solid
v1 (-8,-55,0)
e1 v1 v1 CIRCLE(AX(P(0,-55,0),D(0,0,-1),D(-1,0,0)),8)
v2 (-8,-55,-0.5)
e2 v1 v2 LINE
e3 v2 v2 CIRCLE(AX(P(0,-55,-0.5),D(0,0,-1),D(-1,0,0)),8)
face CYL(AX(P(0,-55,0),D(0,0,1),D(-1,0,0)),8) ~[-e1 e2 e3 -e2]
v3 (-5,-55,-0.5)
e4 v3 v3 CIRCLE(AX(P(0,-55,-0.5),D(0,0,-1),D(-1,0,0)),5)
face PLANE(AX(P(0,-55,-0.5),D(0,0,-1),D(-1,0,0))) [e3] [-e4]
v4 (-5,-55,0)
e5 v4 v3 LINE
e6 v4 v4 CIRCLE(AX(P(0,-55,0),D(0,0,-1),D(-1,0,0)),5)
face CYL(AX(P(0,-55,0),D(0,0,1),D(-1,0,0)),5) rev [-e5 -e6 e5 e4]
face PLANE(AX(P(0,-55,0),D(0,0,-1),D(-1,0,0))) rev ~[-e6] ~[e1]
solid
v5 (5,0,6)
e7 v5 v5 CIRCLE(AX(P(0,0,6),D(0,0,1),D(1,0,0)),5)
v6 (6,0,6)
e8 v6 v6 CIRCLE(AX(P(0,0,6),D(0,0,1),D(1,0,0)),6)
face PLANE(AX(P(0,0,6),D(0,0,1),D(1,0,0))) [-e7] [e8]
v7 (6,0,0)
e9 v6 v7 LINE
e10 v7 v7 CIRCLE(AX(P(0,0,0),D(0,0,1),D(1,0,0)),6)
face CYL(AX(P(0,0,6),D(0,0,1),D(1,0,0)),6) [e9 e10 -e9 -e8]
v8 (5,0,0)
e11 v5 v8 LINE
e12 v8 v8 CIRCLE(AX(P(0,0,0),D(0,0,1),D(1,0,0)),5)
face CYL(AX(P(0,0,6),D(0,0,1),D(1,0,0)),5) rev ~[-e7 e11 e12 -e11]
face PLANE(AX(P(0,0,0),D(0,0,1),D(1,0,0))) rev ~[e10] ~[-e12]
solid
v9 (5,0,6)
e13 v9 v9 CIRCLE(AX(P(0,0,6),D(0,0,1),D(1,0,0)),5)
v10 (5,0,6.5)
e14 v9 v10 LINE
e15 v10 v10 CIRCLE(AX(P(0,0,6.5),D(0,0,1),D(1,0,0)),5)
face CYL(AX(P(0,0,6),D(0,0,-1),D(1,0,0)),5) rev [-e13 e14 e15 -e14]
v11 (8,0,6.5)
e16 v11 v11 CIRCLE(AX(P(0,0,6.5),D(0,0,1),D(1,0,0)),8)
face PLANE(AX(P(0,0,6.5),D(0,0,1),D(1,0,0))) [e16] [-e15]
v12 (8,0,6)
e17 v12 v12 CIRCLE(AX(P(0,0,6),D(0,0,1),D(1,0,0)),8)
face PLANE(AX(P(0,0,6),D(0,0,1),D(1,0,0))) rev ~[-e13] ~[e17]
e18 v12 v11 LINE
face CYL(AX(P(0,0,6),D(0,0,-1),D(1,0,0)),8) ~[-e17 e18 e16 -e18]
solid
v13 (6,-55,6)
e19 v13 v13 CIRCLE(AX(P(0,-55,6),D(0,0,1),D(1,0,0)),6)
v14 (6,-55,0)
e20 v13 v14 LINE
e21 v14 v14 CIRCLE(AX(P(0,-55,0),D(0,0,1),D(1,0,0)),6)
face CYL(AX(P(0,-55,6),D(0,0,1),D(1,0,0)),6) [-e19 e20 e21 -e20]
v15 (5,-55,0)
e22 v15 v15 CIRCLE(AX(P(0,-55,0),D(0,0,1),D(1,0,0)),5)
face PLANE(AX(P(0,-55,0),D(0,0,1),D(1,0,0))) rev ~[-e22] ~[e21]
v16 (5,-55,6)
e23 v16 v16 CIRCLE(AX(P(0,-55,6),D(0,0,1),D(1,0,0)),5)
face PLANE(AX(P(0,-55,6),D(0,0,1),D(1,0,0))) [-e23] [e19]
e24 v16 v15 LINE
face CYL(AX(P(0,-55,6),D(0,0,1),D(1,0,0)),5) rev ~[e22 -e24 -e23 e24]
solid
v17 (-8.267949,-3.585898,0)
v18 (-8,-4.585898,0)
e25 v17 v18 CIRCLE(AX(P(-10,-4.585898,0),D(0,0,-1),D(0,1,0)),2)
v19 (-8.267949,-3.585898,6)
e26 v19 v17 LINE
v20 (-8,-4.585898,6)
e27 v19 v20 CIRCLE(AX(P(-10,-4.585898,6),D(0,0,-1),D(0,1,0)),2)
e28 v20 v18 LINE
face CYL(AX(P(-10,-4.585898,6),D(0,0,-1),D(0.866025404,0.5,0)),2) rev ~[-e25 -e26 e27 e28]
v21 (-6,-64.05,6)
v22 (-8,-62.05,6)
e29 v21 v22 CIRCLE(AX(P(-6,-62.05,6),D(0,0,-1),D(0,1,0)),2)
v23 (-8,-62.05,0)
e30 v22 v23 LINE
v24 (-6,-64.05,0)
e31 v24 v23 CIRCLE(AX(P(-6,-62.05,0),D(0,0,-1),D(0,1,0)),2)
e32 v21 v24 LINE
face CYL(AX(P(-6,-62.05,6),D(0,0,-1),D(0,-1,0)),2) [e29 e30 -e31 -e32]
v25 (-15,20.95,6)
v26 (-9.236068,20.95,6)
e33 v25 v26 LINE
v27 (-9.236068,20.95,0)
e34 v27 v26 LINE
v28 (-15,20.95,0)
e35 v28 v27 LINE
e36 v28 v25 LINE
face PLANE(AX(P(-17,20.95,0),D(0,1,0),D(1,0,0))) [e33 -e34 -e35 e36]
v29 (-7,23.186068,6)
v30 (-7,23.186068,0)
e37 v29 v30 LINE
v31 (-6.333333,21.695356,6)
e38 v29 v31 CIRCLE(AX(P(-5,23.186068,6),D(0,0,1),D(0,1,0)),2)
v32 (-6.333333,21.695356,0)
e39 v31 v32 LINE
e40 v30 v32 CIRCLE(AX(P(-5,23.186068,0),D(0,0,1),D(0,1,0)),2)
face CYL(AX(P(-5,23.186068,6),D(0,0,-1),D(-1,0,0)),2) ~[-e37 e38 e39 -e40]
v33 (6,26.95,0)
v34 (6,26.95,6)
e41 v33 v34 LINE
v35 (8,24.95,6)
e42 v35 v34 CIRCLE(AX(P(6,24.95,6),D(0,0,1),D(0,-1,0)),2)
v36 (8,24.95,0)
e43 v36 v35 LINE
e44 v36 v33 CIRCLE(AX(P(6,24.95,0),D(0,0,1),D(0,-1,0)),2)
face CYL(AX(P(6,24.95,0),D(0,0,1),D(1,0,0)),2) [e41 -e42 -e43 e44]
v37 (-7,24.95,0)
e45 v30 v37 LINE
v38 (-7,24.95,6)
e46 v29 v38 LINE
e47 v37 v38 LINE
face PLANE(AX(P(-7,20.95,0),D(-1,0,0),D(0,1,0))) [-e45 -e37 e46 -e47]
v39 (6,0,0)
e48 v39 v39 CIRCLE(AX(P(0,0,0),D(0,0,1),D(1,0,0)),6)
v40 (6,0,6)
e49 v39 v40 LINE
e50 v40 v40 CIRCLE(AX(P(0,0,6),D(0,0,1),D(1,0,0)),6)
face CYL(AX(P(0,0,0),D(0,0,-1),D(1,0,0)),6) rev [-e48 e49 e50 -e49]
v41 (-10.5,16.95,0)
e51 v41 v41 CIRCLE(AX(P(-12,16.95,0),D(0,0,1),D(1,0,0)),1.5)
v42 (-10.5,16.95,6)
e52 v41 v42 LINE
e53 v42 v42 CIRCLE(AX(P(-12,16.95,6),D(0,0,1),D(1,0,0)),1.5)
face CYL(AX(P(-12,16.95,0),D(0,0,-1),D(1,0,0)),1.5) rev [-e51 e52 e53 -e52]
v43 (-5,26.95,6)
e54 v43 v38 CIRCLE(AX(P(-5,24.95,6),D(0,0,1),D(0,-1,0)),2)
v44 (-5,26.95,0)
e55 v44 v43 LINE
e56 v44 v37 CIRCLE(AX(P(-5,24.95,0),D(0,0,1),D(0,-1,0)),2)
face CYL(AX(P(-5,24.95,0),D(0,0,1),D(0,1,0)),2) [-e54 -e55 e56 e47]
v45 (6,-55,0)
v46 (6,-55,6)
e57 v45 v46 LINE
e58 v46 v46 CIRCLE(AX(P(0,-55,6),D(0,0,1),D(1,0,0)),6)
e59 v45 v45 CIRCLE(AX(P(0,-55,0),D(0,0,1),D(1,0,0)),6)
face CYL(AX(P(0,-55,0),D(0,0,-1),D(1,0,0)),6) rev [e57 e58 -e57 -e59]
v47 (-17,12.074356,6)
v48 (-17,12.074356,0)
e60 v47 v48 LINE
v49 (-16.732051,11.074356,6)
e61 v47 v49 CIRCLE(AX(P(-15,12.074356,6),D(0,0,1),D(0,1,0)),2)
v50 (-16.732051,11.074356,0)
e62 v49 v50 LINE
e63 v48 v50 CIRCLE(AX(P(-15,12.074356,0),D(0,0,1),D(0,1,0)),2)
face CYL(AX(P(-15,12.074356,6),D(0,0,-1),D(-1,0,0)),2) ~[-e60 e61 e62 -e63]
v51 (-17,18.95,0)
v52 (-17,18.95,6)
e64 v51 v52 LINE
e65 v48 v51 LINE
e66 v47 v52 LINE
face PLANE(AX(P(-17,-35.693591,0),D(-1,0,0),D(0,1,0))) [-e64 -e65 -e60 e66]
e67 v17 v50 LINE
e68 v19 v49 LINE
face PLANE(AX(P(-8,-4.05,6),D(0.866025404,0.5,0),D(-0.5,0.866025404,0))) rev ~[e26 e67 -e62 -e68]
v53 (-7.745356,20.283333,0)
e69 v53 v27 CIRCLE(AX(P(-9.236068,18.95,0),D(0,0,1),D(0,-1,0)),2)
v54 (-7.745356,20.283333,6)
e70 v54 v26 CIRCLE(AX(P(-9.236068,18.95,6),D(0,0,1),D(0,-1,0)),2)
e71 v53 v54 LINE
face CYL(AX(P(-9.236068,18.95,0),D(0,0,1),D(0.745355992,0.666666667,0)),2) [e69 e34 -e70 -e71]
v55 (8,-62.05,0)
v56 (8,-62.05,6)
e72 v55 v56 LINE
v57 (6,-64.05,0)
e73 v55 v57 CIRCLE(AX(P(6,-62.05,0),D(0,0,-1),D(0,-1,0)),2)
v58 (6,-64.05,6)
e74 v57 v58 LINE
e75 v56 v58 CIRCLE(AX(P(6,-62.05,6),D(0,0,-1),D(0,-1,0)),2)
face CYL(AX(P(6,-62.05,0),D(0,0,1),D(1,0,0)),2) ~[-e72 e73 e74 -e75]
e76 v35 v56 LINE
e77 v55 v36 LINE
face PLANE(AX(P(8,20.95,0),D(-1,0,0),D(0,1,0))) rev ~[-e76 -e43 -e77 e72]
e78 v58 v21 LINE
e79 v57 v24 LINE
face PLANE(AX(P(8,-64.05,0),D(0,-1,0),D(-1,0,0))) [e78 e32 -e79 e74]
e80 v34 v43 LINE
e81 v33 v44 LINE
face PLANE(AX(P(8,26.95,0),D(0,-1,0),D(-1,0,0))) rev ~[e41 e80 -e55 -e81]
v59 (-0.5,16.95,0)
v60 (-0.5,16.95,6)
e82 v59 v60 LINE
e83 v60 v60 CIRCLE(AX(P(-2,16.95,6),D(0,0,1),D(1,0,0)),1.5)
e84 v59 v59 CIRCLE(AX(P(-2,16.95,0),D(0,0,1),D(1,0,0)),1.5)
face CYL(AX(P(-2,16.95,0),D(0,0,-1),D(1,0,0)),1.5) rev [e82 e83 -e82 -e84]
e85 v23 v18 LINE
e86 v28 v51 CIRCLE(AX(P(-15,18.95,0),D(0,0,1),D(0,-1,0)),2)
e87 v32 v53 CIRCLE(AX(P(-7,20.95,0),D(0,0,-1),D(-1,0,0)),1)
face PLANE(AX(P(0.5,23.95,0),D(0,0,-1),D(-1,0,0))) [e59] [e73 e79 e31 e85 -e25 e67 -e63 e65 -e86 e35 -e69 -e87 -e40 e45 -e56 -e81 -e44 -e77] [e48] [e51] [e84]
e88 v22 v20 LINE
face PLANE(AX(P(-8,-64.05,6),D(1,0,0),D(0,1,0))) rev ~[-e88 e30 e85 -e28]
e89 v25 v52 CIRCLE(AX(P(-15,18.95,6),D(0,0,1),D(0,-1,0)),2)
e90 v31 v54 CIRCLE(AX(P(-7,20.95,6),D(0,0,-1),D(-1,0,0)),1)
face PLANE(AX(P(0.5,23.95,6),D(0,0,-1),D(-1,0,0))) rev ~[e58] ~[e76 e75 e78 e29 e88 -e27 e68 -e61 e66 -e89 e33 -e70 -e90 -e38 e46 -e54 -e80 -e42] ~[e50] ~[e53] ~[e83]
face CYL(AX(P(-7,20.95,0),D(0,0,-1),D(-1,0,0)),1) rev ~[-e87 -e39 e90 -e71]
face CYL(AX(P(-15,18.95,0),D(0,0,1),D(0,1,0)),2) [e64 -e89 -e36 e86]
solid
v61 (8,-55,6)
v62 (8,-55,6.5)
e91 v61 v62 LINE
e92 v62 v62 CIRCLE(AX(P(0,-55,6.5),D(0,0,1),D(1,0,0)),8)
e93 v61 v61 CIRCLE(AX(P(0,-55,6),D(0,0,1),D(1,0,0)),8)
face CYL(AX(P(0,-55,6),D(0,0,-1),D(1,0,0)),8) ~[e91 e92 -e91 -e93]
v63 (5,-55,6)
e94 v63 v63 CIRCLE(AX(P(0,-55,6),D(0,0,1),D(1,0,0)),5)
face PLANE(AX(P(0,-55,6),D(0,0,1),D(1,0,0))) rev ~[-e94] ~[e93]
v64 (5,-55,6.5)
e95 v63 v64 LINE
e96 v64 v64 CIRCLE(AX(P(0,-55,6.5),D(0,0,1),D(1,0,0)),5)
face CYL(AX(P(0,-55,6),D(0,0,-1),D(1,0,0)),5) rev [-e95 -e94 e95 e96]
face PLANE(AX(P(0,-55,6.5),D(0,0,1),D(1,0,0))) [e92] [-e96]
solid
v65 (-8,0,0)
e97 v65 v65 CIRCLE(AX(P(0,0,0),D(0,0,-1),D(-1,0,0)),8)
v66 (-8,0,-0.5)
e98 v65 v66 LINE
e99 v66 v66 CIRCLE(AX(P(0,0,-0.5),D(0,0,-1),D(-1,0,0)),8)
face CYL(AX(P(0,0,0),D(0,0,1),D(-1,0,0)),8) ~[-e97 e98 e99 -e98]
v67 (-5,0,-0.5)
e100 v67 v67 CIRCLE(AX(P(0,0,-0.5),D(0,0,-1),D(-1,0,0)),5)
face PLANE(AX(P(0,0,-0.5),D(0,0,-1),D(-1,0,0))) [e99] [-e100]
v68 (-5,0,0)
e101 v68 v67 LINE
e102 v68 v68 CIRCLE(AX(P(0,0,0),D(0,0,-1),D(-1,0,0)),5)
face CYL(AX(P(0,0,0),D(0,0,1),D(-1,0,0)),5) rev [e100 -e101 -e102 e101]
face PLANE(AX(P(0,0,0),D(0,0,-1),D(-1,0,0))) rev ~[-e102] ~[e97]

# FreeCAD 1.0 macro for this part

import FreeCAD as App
import Part
import Sketcher

V = App.Vector
Q = App.Units.Quantity


def edges_at(feature, points):
    """Names of the edges that pass closest to the given points."""
    edges = feature.Shape.Edges
    near = lambda p: min(range(len(edges)), key=lambda i: edges[i].distToShape(Part.Vertex(*p))[0])
    return sorted({f"Edge{near(p) + 1}" for p in points})


def add_polygon(sketch, points):
    """Adds a closed chain of lines whose ends are joined by coincident constraints."""
    first, n = sketch.GeometryCount, len(points)
    for a, b in zip(points, points[1:] + points[:1]):
        sketch.addGeometry(Part.LineSegment(App.Vector(*a, 0), App.Vector(*b, 0)), False)
    for i in range(n):
        sketch.addConstraint(Sketcher.Constraint("Coincident", first + i, 2, first + (i + 1) % n, 1))

doc = App.newDocument("Part")
params = doc.addObject("Spreadsheet::Sheet", "Params")
for row, (alias, value) in enumerate([
    ("sketch1_diameter", "12 mm"),
    ("sketch1_diameter2", "3 mm"),
    ("sketch1_width", "25 mm"),
    ("sketch1_width2", "20 mm"),
    ("sketch1_height", "85 mm"),
    ("pad1_length", "6 mm"),
    ("sketch2_width", "15 mm"),
    ("sketch2_height", "6 mm"),
    ("pad2_length", "6 mm"),
    ("sketch3_diameter", "2 mm"),
    ("pocket1_length", "6 mm"),
    ("sketch4_width", "4 mm"),
    ("sketch4_height", "60 mm"),
    ("sketch4_length", "18 mm"),
    ("pocket2_length", "6 mm"),
    ("fillet_radius", "2 mm"),
    ("sketch5_diameter", "12 mm"),
    ("sketch5_diameter2", "10 mm"),
    ("pad3_length", "6 mm"),
    ("sketch6_diameter", "12 mm"),
    ("sketch6_diameter2", "10 mm"),
    ("pad4_length", "6 mm"),
    ("sketch7_diameter", "16 mm"),
    ("sketch7_diameter2", "10 mm"),
    ("pad5_length", "0.5 mm"),
    ("sketch8_diameter", "16 mm"),
    ("sketch8_diameter2", "10 mm"),
    ("pad6_length", "0.5 mm"),
    ("sketch9_diameter", "16 mm"),
    ("sketch9_diameter2", "10 mm"),
    ("pad7_length", "0.5 mm"),
    ("sketch10_diameter", "16 mm"),
    ("sketch10_diameter2", "10 mm"),
    ("pad8_length", "0.5 mm"),
], start=1):
    params.set(f"A{row}", alias)
    params.set(f"B{row}", "=" + value)
    params.setAlias(f"B{row}", alias)

body = doc.addObject("PartDesign::Body", "Body")

# Sketch on XY plane
sketch1 = body.newObject("Sketcher::SketchObject", "Sketch")
sketch1.AttachmentSupport = (doc.getObject("XY_Plane"), [""])
sketch1.MapMode = "FlatFace"
add_polygon(sketch1, [(8, -64), (8, 20.9), (-17, 20.9), (-17, -35.7), (-12, -64)])  # lines 0-4
sketch1.addGeometry(Part.Circle(V(0, -55, 0), V(0, 0, 1), 6), False)  # 5
sketch1.addGeometry(Part.Circle(V(0, 0, 0), V(0, 0, 1), 6), False)  # 6
sketch1.addGeometry(Part.Circle(V(-2, 16.9, 0), V(0, 0, 1), 1.5), False)  # 7
sketch1.addGeometry(Part.Circle(V(-12, 16.9, 0), V(0, 0, 1), 1.5), False)  # 8
sketch1.addConstraint(Sketcher.Constraint("Vertical", 0))
sketch1.addConstraint(Sketcher.Constraint("Horizontal", 1))
sketch1.addConstraint(Sketcher.Constraint("Vertical", 2))
sketch1.addConstraint(Sketcher.Constraint("Horizontal", 4))
sketch1.addConstraint(Sketcher.Constraint("Coincident", 6, 3, -1, 1))
sketch1.addConstraint(Sketcher.Constraint("Equal", 5, 6))
sketch1.addConstraint(Sketcher.Constraint("Equal", 7, 8))
sketch1.addConstraint(Sketcher.Constraint("PointOnObject", 5, 3, -2))
sketch1.addConstraint(Sketcher.Constraint("Horizontal", 7, 3, 8, 3))
sketch1.addConstraint(Sketcher.Constraint("Vertical", 8, 3, 3, 2))
sketch1.addConstraint(Sketcher.Constraint("Diameter", 5, 12.0))
sketch1.addConstraint(Sketcher.Constraint("Diameter", 7, 3.0))
sketch1.addConstraint(Sketcher.Constraint("DistanceX", 1, 2, 1, 1, 25.0))
sketch1.addConstraint(Sketcher.Constraint("DistanceX", 4, 1, 4, 2, 20.0))
sketch1.addConstraint(Sketcher.Constraint("DistanceY", 0, 1, 0, 2, 85.0))
sketch1.addConstraint(Sketcher.Constraint("Angle", 3, Q("-80 deg")))
sketch1.addConstraint(Sketcher.Constraint("DistanceY", 5, 3, -1, 1, 55.0))
sketch1.addConstraint(Sketcher.Constraint("DistanceX", 7, 3, -1, 1, 2.0))
sketch1.addConstraint(Sketcher.Constraint("DistanceX", 8, 3, -1, 1, 12.0))
sketch1.addConstraint(Sketcher.Constraint("DistanceY", 7, 3, 0, 2, 4.0))
sketch1.addConstraint(Sketcher.Constraint("DistanceY", -1, 1, 7, 3, 16.95))
sketch1.setExpression("Constraints[15]", "Params.sketch1_diameter")
sketch1.setExpression("Constraints[16]", "Params.sketch1_diameter2")
sketch1.setExpression("Constraints[17]", "Params.sketch1_width")
sketch1.setExpression("Constraints[18]", "Params.sketch1_width2")
sketch1.setExpression("Constraints[19]", "Params.sketch1_height")
pad1 = body.newObject("PartDesign::Pad", "Pad")
pad1.Profile = sketch1
pad1.setExpression("Length", "Params.pad1_length")

# Sketch on XY plane
sketch2 = body.newObject("Sketcher::SketchObject", "Sketch001")
sketch2.AttachmentSupport = (doc.getObject("XY_Plane"), [""])
sketch2.MapMode = "FlatFace"
add_polygon(sketch2, [(8, 27), (8, 21), (-7, 21), (-7, 27)])  # lines 0-3
sketch2.addConstraint(Sketcher.Constraint("Vertical", 0))
sketch2.addConstraint(Sketcher.Constraint("Horizontal", 1))
sketch2.addConstraint(Sketcher.Constraint("Vertical", 2))
sketch2.addConstraint(Sketcher.Constraint("Horizontal", 3))
sketch2.addConstraint(Sketcher.Constraint("DistanceX", 1, 2, 1, 1, 15.0))
sketch2.addConstraint(Sketcher.Constraint("DistanceY", 0, 2, 0, 1, 6.0))
sketch2.addConstraint(Sketcher.Constraint("DistanceX", -1, 1, 0, 2, 8.0))
sketch2.addConstraint(Sketcher.Constraint("DistanceY", -1, 1, 0, 2, 20.95))
sketch2.setExpression("Constraints[8]", "Params.sketch2_width")
sketch2.setExpression("Constraints[9]", "Params.sketch2_height")
pad2 = body.newObject("PartDesign::Pad", "Pad001")
pad2.Profile = sketch2
pad2.setExpression("Length", "Params.pad2_length")

# Sketch on XY plane
sketch3 = body.newObject("Sketcher::SketchObject", "Sketch002")
sketch3.AttachmentSupport = (doc.getObject("XY_Plane"), [""])
sketch3.MapMode = "FlatFace"
sketch3.addGeometry(Part.Circle(V(-7, 20.9, 0), V(0, 0, 1), 1), False)
sketch3.addConstraint(Sketcher.Constraint("Diameter", 0, 2.0))
sketch3.addConstraint(Sketcher.Constraint("DistanceX", 0, 3, -1, 1, 7.0))
sketch3.addConstraint(Sketcher.Constraint("DistanceY", -1, 1, 0, 3, 20.95))
sketch3.setExpression("Constraints[0]", "Params.sketch3_diameter")
pocket1 = body.newObject("PartDesign::Pocket", "Pocket")
pocket1.Profile = sketch3
pocket1.setExpression("Length", "Params.pocket1_length")
pocket1.Reversed = True

# Sketch on XY plane
sketch4 = body.newObject("Sketcher::SketchObject", "Sketch003")
sketch4.AttachmentSupport = (doc.getObject("XY_Plane"), [""])
sketch4.MapMode = "FlatFace"
sketch4.AttachmentOffset = App.Placement(V(0, 0, 6), App.Rotation())
add_polygon(sketch4, [(-12, -64), (-8, -64), (-8, -4), (-17, 11.5), (-17, -35.7)])  # lines 0-4
sketch4.addConstraint(Sketcher.Constraint("Horizontal", 0))
sketch4.addConstraint(Sketcher.Constraint("Vertical", 1))
sketch4.addConstraint(Sketcher.Constraint("Vertical", 3))
sketch4.addConstraint(Sketcher.Constraint("DistanceX", 0, 1, 0, 2, 4.0))
sketch4.addConstraint(Sketcher.Constraint("DistanceY", 1, 1, 1, 2, 60.0))
sketch4.addConstraint(Sketcher.Constraint("Angle", 2, Q("120 deg")))
sketch4.addConstraint(Sketcher.Constraint("Angle", 4, Q("-80 deg")))
sketch4.addConstraint(Sketcher.Constraint("Distance", 2, 18.0))
sketch4.addConstraint(Sketcher.Constraint("DistanceX", 0, 2, -1, 1, 8.0))
sketch4.addConstraint(Sketcher.Constraint("DistanceY", 0, 2, -1, 1, 64.05))
sketch4.setExpression("Constraints[8]", "Params.sketch4_width")
sketch4.setExpression("Constraints[9]", "Params.sketch4_height")
sketch4.setExpression("Constraints[12]", "Params.sketch4_length")
pocket2 = body.newObject("PartDesign::Pocket", "Pocket001")
pocket2.Profile = sketch4
pocket2.setExpression("Length", "Params.pocket2_length")
doc.recompute()

fillet = body.newObject("PartDesign::Fillet", "Fillet")
fillet.Base = (pocket2, edges_at(pocket2, [
    (8, 26.95, 3),
    (-7, 26.95, 3),
    (-7, 21.95, 3),
    (-8, 20.95, 3),
    (-8, -4.05, 3),
    (-8, -64.05, 3),
    (-17, 11.538, 3),
    (8, -64.05, 3),
    (-17, 20.95, 3),
]))
fillet.setExpression("Radius", "Params.fillet_radius")
body2 = doc.addObject("PartDesign::Body", "Body001")

# Sketch on XY plane
sketch5 = body2.newObject("Sketcher::SketchObject", "Sketch004")
sketch5.AttachmentSupport = (doc.getObject("XY_Plane001"), [""])
sketch5.MapMode = "FlatFace"
sketch5.AttachmentOffset = App.Placement(V(0, 0, 6), App.Rotation())
sketch5.addGeometry(Part.Circle(V(0, -55, 0), V(0, 0, 1), 6), False)
sketch5.addGeometry(Part.Circle(V(0, -55, 0), V(0, 0, 1), 5), False)
sketch5.addConstraint(Sketcher.Constraint("Coincident", 1, 3, 0, 3))
sketch5.addConstraint(Sketcher.Constraint("PointOnObject", 0, 3, -2))
sketch5.addConstraint(Sketcher.Constraint("Diameter", 0, 12.0))
sketch5.addConstraint(Sketcher.Constraint("Diameter", 1, 10.0))
sketch5.addConstraint(Sketcher.Constraint("DistanceY", 0, 3, -1, 1, 55.0))
sketch5.setExpression("Constraints[2]", "Params.sketch5_diameter")
sketch5.setExpression("Constraints[3]", "Params.sketch5_diameter2")
pad3 = body2.newObject("PartDesign::Pad", "Pad002")
pad3.Profile = sketch5
pad3.setExpression("Length", "Params.pad3_length")
pad3.Reversed = True
body3 = doc.addObject("PartDesign::Body", "Body002")

# Sketch on XY plane
sketch6 = body3.newObject("Sketcher::SketchObject", "Sketch005")
sketch6.AttachmentSupport = (doc.getObject("XY_Plane002"), [""])
sketch6.MapMode = "FlatFace"
sketch6.AttachmentOffset = App.Placement(V(0, 0, 6), App.Rotation())
sketch6.addGeometry(Part.Circle(V(0, 0, 0), V(0, 0, 1), 6), False)
sketch6.addGeometry(Part.Circle(V(0, 0, 0), V(0, 0, 1), 5), False)
sketch6.addConstraint(Sketcher.Constraint("Coincident", 0, 3, -1, 1))
sketch6.addConstraint(Sketcher.Constraint("Coincident", 1, 3, -1, 1))
sketch6.addConstraint(Sketcher.Constraint("Diameter", 0, 12.0))
sketch6.addConstraint(Sketcher.Constraint("Diameter", 1, 10.0))
sketch6.setExpression("Constraints[2]", "Params.sketch6_diameter")
sketch6.setExpression("Constraints[3]", "Params.sketch6_diameter2")
pad4 = body3.newObject("PartDesign::Pad", "Pad003")
pad4.Profile = sketch6
pad4.setExpression("Length", "Params.pad4_length")
pad4.Reversed = True
body4 = doc.addObject("PartDesign::Body", "Body003")

# Sketch on XY plane
sketch7 = body4.newObject("Sketcher::SketchObject", "Sketch006")
sketch7.AttachmentSupport = (doc.getObject("XY_Plane003"), [""])
sketch7.MapMode = "FlatFace"
sketch7.AttachmentOffset = App.Placement(V(0, 0, 6), App.Rotation())
sketch7.addGeometry(Part.Circle(V(0, 0, 0), V(0, 0, 1), 8), False)
sketch7.addGeometry(Part.Circle(V(0, 0, 0), V(0, 0, 1), 5), False)
sketch7.addConstraint(Sketcher.Constraint("Coincident", 0, 3, -1, 1))
sketch7.addConstraint(Sketcher.Constraint("Coincident", 1, 3, -1, 1))
sketch7.addConstraint(Sketcher.Constraint("Diameter", 0, 16.0))
sketch7.addConstraint(Sketcher.Constraint("Diameter", 1, 10.0))
sketch7.setExpression("Constraints[2]", "Params.sketch7_diameter")
sketch7.setExpression("Constraints[3]", "Params.sketch7_diameter2")
pad5 = body4.newObject("PartDesign::Pad", "Pad004")
pad5.Profile = sketch7
pad5.setExpression("Length", "Params.pad5_length")
body5 = doc.addObject("PartDesign::Body", "Body004")

# Sketch on XY plane
sketch8 = body5.newObject("Sketcher::SketchObject", "Sketch007")
sketch8.AttachmentSupport = (doc.getObject("XY_Plane004"), [""])
sketch8.MapMode = "FlatFace"
sketch8.AttachmentOffset = App.Placement(V(0, 0, 6), App.Rotation())
sketch8.addGeometry(Part.Circle(V(0, -55, 0), V(0, 0, 1), 8), False)
sketch8.addGeometry(Part.Circle(V(0, -55, 0), V(0, 0, 1), 5), False)
sketch8.addConstraint(Sketcher.Constraint("Coincident", 1, 3, 0, 3))
sketch8.addConstraint(Sketcher.Constraint("PointOnObject", 0, 3, -2))
sketch8.addConstraint(Sketcher.Constraint("Diameter", 0, 16.0))
sketch8.addConstraint(Sketcher.Constraint("Diameter", 1, 10.0))
sketch8.addConstraint(Sketcher.Constraint("DistanceY", 0, 3, -1, 1, 55.0))
sketch8.setExpression("Constraints[2]", "Params.sketch8_diameter")
sketch8.setExpression("Constraints[3]", "Params.sketch8_diameter2")
pad6 = body5.newObject("PartDesign::Pad", "Pad005")
pad6.Profile = sketch8
pad6.setExpression("Length", "Params.pad6_length")
body6 = doc.addObject("PartDesign::Body", "Body005")

# Sketch on XY plane
sketch9 = body6.newObject("Sketcher::SketchObject", "Sketch008")
sketch9.AttachmentSupport = (doc.getObject("XY_Plane005"), [""])
sketch9.MapMode = "FlatFace"
sketch9.addGeometry(Part.Circle(V(0, -55, 0), V(0, 0, 1), 8), False)
sketch9.addGeometry(Part.Circle(V(0, -55, 0), V(0, 0, 1), 5), False)
sketch9.addConstraint(Sketcher.Constraint("Coincident", 1, 3, 0, 3))
sketch9.addConstraint(Sketcher.Constraint("PointOnObject", 0, 3, -2))
sketch9.addConstraint(Sketcher.Constraint("Diameter", 0, 16.0))
sketch9.addConstraint(Sketcher.Constraint("Diameter", 1, 10.0))
sketch9.addConstraint(Sketcher.Constraint("DistanceY", 0, 3, -1, 1, 55.0))
sketch9.setExpression("Constraints[2]", "Params.sketch9_diameter")
sketch9.setExpression("Constraints[3]", "Params.sketch9_diameter2")
pad7 = body6.newObject("PartDesign::Pad", "Pad006")
pad7.Profile = sketch9
pad7.setExpression("Length", "Params.pad7_length")
pad7.Reversed = True
body7 = doc.addObject("PartDesign::Body", "Body006")

# Sketch on XY plane
sketch10 = body7.newObject("Sketcher::SketchObject", "Sketch009")
sketch10.AttachmentSupport = (doc.getObject("XY_Plane006"), [""])
sketch10.MapMode = "FlatFace"
sketch10.addGeometry(Part.Circle(V(0, 0, 0), V(0, 0, 1), 8), False)
sketch10.addGeometry(Part.Circle(V(0, 0, 0), V(0, 0, 1), 5), False)
sketch10.addConstraint(Sketcher.Constraint("Coincident", 0, 3, -1, 1))
sketch10.addConstraint(Sketcher.Constraint("Coincident", 1, 3, -1, 1))
sketch10.addConstraint(Sketcher.Constraint("Diameter", 0, 16.0))
sketch10.addConstraint(Sketcher.Constraint("Diameter", 1, 10.0))
sketch10.setExpression("Constraints[2]", "Params.sketch10_diameter")
sketch10.setExpression("Constraints[3]", "Params.sketch10_diameter2")
pad8 = body7.newObject("PartDesign::Pad", "Pad007")
pad8.Profile = sketch10
pad8.setExpression("Length", "Params.pad8_length")
pad8.Reversed = True

doc.recompute()
